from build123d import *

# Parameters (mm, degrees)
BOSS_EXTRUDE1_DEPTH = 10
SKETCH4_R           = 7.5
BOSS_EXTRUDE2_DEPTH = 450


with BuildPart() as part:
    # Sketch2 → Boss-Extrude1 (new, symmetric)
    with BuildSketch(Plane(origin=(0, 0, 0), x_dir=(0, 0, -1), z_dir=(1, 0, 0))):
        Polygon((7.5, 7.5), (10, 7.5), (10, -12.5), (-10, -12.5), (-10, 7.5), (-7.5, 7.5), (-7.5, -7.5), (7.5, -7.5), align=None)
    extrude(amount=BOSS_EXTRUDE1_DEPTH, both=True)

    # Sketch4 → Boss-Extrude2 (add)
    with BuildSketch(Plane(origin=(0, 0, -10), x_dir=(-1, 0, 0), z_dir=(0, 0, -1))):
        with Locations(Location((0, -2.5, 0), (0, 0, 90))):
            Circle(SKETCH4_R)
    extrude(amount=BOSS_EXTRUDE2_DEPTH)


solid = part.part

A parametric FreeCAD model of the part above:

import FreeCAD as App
import Part
import Sketcher

V = App.Vector


def add_polygon(sketch, points):
    """Adds a closed chain of lines whose ends are joined by coincident constraints."""
    first, n = sketch.GeometryCount, len(points)
    for a, b in zip(points, points[1:] + points[:1]):
        sketch.addGeometry(Part.LineSegment(App.Vector(*a, 0), App.Vector(*b, 0)), False)
    for i in range(n):
        sketch.addConstraint(Sketcher.Constraint("Coincident", first + i, 2, first + (i + 1) % n, 1))

doc = App.newDocument("Part")
body = doc.addObject("PartDesign::Body", "Body")

sketch1 = body.newObject("Sketcher::SketchObject", "Sketch")
sketch1.AttachmentSupport = (doc.getObject("YZ_Plane"), [""])
sketch1.MapMode = "FlatFace"
add_polygon(sketch1, [(7.5, -10), (7.5, -7.5), (-7.5, -7.5), (-7.5, 7.5), (7.5, 7.5), (7.5, 10), (-12.5, 10), (-12.5, -10)])
sketch1.addConstraint([
    Sketcher.Constraint("Vertical", 0),
    Sketcher.Constraint("Horizontal", 1),
    Sketcher.Constraint("Vertical", 2),
    Sketcher.Constraint("Horizontal", 3),
    Sketcher.Constraint("Vertical", 4),
    Sketcher.Constraint("Horizontal", 5),
    Sketcher.Constraint("Vertical", 6),
    Sketcher.Constraint("Horizontal", 7),
    Sketcher.Constraint("Symmetric", 0, 2, 2, 2, -1, 1),
    Sketcher.Constraint("Symmetric", 4, 2, 7, 2, -1),
    Sketcher.Constraint("Equal", 3, 2),
    Sketcher.Constraint("Equal", 7, 6),
    Sketcher.Constraint("DistanceX", 1, 2, 1, 1, 15.0),
    Sketcher.Constraint("DistanceX", 5, 2, 5, 1, 20.0),
])
pad1 = body.newObject("PartDesign::Pad", "Pad")
pad1.Profile = sketch1
pad1.Length = 20
pad1.Midplane = True

sketch2 = body.newObject("Sketcher::SketchObject", "Sketch001")
sketch2.AttachmentSupport = (doc.getObject("XY_Plane"), [""])
sketch2.MapMode = "FlatFace"
sketch2.AttachmentOffset = App.Placement(V(0, 0, -10), App.Rotation())
sketch2.addGeometry(Part.Circle(V(0, -2.5, 0), V(0, 0, 1), 7.5), False)
sketch2.addConstraint([
    Sketcher.Constraint("PointOnObject", 0, 3, -2),
    Sketcher.Constraint("Diameter", 0, 15.0),
    Sketcher.Constraint("DistanceY", 0, 3, -1, 1, 2.5),
])
pad2 = body.newObject("PartDesign::Pad", "Pad001")
pad2.Profile = sketch2
pad2.Length = 450
pad2.Reversed = True

doc.recompute()
